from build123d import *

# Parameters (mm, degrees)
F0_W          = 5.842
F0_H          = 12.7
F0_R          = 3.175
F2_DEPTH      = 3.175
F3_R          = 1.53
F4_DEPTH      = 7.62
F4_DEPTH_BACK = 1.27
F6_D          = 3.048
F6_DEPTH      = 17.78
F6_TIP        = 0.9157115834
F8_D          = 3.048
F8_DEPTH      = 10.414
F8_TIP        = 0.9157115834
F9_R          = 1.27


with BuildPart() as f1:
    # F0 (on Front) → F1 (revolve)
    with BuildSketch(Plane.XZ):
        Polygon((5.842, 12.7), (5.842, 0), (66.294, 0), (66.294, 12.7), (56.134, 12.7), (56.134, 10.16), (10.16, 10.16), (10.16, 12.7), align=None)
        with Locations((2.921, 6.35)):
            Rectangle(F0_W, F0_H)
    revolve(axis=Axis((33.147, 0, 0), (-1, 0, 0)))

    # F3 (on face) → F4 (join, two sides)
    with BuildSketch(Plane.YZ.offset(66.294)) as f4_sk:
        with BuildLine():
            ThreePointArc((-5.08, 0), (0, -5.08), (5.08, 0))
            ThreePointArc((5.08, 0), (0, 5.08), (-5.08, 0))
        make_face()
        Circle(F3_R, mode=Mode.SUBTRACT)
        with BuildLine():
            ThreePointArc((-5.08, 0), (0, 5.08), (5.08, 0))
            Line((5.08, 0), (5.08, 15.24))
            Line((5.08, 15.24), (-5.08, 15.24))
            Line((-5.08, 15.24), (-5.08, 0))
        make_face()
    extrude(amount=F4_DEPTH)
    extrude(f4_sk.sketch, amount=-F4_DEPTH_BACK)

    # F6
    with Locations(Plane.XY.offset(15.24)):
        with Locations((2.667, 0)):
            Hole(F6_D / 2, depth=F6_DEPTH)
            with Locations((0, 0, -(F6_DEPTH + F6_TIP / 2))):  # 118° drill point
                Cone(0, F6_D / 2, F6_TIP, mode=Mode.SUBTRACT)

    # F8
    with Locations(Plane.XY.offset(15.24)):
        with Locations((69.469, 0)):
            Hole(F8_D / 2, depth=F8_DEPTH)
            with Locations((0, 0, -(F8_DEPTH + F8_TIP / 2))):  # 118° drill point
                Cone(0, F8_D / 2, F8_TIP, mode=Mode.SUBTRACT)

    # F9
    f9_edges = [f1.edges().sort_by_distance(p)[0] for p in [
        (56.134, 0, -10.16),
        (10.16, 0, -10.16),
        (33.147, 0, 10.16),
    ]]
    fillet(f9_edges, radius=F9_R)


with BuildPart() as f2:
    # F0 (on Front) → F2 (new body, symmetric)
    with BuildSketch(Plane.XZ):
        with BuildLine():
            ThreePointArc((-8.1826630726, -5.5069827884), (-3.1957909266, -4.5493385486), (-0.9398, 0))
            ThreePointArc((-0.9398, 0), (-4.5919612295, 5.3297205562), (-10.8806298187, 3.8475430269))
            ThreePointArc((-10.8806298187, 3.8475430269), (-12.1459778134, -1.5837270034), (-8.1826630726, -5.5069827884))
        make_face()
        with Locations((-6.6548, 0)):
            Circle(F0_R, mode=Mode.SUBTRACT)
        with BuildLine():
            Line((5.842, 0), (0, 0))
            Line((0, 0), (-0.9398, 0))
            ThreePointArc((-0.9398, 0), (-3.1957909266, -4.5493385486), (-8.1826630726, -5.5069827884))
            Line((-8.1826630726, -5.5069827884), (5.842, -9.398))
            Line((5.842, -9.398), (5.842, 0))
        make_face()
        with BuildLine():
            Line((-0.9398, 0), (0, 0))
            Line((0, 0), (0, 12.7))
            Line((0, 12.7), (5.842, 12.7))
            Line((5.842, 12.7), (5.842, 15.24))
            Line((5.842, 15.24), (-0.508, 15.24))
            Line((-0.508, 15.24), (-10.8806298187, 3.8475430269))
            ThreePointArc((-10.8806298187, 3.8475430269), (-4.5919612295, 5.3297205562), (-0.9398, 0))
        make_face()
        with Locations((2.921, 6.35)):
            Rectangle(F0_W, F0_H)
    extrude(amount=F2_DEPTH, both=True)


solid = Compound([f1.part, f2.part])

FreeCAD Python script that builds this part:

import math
import FreeCAD as App
import Part
import Sketcher
Q = App.Units.Quantity


def edges_at(feature, points):
    """Names of the edges that pass closest to the given points."""
    edges = feature.Shape.Edges
    near = lambda p: min(range(len(edges)), key=lambda i: edges[i].distToShape(Part.Vertex(*p))[0])
    return sorted({f"Edge{near(p) + 1}" for p in points})

doc = App.newDocument("Part")
body = doc.addObject("PartDesign::Body", "Body")

# Sketch on XZ plane
sketch1 = body.newObject("Sketcher::SketchObject", "Sketch")
sketch1.AttachmentSupport = (doc.getObject("XZ_Plane"), [""])
sketch1.MapMode = "FlatFace"
sketch1.addGeometry([
    Part.LineSegment(App.Vector(66.294, 0, 0), App.Vector(66.294, 12.7, 0)),  # 0
    Part.LineSegment(App.Vector(66.294, 12.7, 0), App.Vector(56.134, 12.7, 0)),  # 1
    Part.LineSegment(App.Vector(56.134, 12.7, 0), App.Vector(56.134, 10.16, 0)),  # 2
    Part.LineSegment(App.Vector(56.134, 10.16, 0), App.Vector(10.16, 10.16, 0)),  # 3
    Part.LineSegment(App.Vector(10.16, 10.16, 0), App.Vector(10.16, 12.7, 0)),  # 4
    Part.LineSegment(App.Vector(10.16, 12.7, 0), App.Vector(0, 12.7, 0)),  # 5
    Part.LineSegment(App.Vector(0, 12.7, 0), App.Vector(0, 0, 0)),  # 6
    Part.LineSegment(App.Vector(0, 0, 0), App.Vector(66.294, 0, 0)),  # 7
], False)
sketch1.addConstraint([
    Sketcher.Constraint("Coincident", 0, 2, 1, 1),
    Sketcher.Constraint("Coincident", 1, 2, 2, 1),
    Sketcher.Constraint("Coincident", 2, 2, 3, 1),
    Sketcher.Constraint("Coincident", 3, 2, 4, 1),
    Sketcher.Constraint("Coincident", 4, 2, 5, 1),
    Sketcher.Constraint("Coincident", 5, 2, 6, 1),
    Sketcher.Constraint("Coincident", 6, 2, 7, 1),
    Sketcher.Constraint("Coincident", 7, 2, 0, 1),
    Sketcher.Constraint("Vertical", 0),
    Sketcher.Constraint("Horizontal", 1),
    Sketcher.Constraint("Vertical", 2),
    Sketcher.Constraint("Horizontal", 3),
    Sketcher.Constraint("Vertical", 4),
    Sketcher.Constraint("Horizontal", 5),
    Sketcher.Constraint("Vertical", 6),
    Sketcher.Constraint("Horizontal", 7),
    Sketcher.Constraint("Coincident", 6, 2, -1, 1),
    Sketcher.Constraint("Horizontal", 1, 2, 4, 2),
    Sketcher.Constraint("Equal", 1, 5),
    Sketcher.Constraint("DistanceX", 1, 2, 1, 1, Q("0.4 in")),
    Sketcher.Constraint("DistanceY", 0, 1, 0, 2, Q("0.5 in")),
    Sketcher.Constraint("DistanceY", 2, 2, 2, 1, Q("0.1 in")),
    Sketcher.Constraint("DistanceX", 3, 2, 3, 1, Q("1.81 in")),
])
revolution = body.newObject("PartDesign::Revolution", "Revolution")
revolution.Profile = sketch1
revolution.ReferenceAxis = (sketch1, ["H_Axis"])
revolution.Angle = 360

# Sketch on YZ plane
sketch2 = body.newObject("Sketcher::SketchObject", "Sketch001")
sketch2.AttachmentSupport = (doc.getObject("YZ_Plane"), [""])
sketch2.MapMode = "FlatFace"
sketch2.AttachmentOffset = App.Placement(App.Vector(0, 0, 2.61 * 25.4), App.Rotation())
sketch2.addGeometry([
    Part.ArcOfCircle(Part.Circle(App.Vector(0, 0, 0), App.Vector(0, 0, 1), 5.08), math.radians(180), math.radians(360)),  # 0
    Part.LineSegment(App.Vector(5.08, 0, 0), App.Vector(5.08, 15.24, 0)),  # 1
    Part.LineSegment(App.Vector(5.08, 15.24, 0), App.Vector(-5.08, 15.24, 0)),  # 2
    Part.LineSegment(App.Vector(-5.08, 15.24, 0), App.Vector(-5.08, 0, 0)),  # 3
    Part.Circle(App.Vector(0, 0, 0), App.Vector(0, 0, 1), 1.53),  # 4
], False)
sketch2.addConstraint([
    Sketcher.Constraint("Tangent", 0, 2, 1, 1),
    Sketcher.Constraint("Coincident", 1, 2, 2, 1),
    Sketcher.Constraint("Coincident", 2, 2, 3, 1),
    Sketcher.Constraint("Tangent", 3, 2, 0, 1),
    Sketcher.Constraint("Vertical", 1),
    Sketcher.Constraint("Horizontal", 2),
    Sketcher.Constraint("Vertical", 3),
    Sketcher.Constraint("Coincident", 0, 3, -1, 1),
    Sketcher.Constraint("Coincident", 4, 3, -1, 1),
    Sketcher.Constraint("Radius", 0, Q("0.2 in")),
    Sketcher.Constraint("DistanceY", 1, 1, 1, 2, Q("0.6 in")),
    Sketcher.Constraint("Diameter", 4, Q("3.06 mm")),
])
pad1 = body.newObject("PartDesign::Pad", "Pad")
pad1.Profile = sketch2
pad1.Type = "TwoLengths"
pad1.Length = Q("0.3 in")
pad1.Length2 = Q("0.05 in")

# Sketch on XY plane
sketch3 = body.newObject("Sketcher::SketchObject", "Sketch002")
sketch3.AttachmentSupport = (doc.getObject("XY_Plane"), [""])
sketch3.MapMode = "FlatFace"
sketch3.AttachmentOffset = App.Placement(App.Vector(0, 0, 0.6 * 25.4), App.Rotation())
sketch3.addGeometry(Part.Circle(App.Vector(2.667, 0, 0), App.Vector(0, 0, 1), 1.524), False)
sketch3.addConstraint([
    Sketcher.Constraint("PointOnObject", 0, 3, -1),
    Sketcher.Constraint("Diameter", 0, Q("0.12 in")),
    Sketcher.Constraint("DistanceX", -1, 1, 0, 3, Q("0.105 in")),
])
doc.recompute()
hole = body.newObject("PartDesign::Hole", "Hole")
hole.Profile = sketch3
hole.ThreadType = "None"
hole.Diameter = Q("0.12 in")
hole.DepthType = "Dimension"
hole.Depth = Q("0.7 in")
hole.DrillPoint = "Angled"
hole.DrillPointAngle = 118

# Sketch on XY plane
sketch4 = body.newObject("Sketcher::SketchObject", "Sketch003")
sketch4.AttachmentSupport = (doc.getObject("XY_Plane"), [""])
sketch4.MapMode = "FlatFace"
sketch4.AttachmentOffset = App.Placement(App.Vector(0, 0, 0.6 * 25.4), App.Rotation())
sketch4.addGeometry(Part.Circle(App.Vector(69.469, 0, 0), App.Vector(0, 0, 1), 1.524), False)
sketch4.addConstraint([
    Sketcher.Constraint("PointOnObject", 0, 3, -1),
    Sketcher.Constraint("Diameter", 0, Q("0.12 in")),
    Sketcher.Constraint("DistanceX", -1, 1, 0, 3, Q("2.735 in")),
])
doc.recompute()
hole2 = body.newObject("PartDesign::Hole", "Hole001")
hole2.Profile = sketch4
hole2.ThreadType = "None"
hole2.Diameter = Q("0.12 in")
hole2.DepthType = "Dimension"
hole2.Depth = Q("0.41 in")
hole2.DrillPoint = "Angled"
hole2.DrillPointAngle = 118
doc.recompute()

fillet = body.newObject("PartDesign::Fillet", "Fillet")
fillet.Base = (hole2, edges_at(hole2, [(56.134, 0, -10.16), (10.16, 0, -10.16), (33.147, 0, 10.16)]))
fillet.Radius = Q("0.05 in")
body2 = doc.addObject("PartDesign::Body", "Body001")

# Sketch on XZ plane
sketch5 = body2.newObject("Sketcher::SketchObject", "Sketch004")
sketch5.AttachmentSupport = (doc.getObject("XZ_Plane001"), [""])
sketch5.MapMode = "FlatFace"
sketch5.addGeometry([
    Part.ArcOfCircle(Part.Circle(App.Vector(-6.6548, 0, 0), App.Vector(0, 0, 1), 5.715), math.radians(137.682695), math.radians(254.493802)),  # 0
    Part.LineSegment(App.Vector(-8.182663, -5.506983, 0), App.Vector(5.842, -9.398, 0)),  # 1
    Part.LineSegment(App.Vector(5.842, -9.398, 0), App.Vector(5.842, 15.24, 0)),  # 2
    Part.LineSegment(App.Vector(5.842, 15.24, 0), App.Vector(-0.508, 15.24, 0)),  # 3
    Part.LineSegment(App.Vector(-0.508, 15.24, 0), App.Vector(-10.88063, 3.847543, 0)),  # 4
    Part.Circle(App.Vector(-6.6548, 0, 0), App.Vector(0, 0, 1), 3.175),  # 5
], False)
sketch5.addConstraint([
    Sketcher.Constraint("Tangent", 0, 2, 1, 1),
    Sketcher.Constraint("Coincident", 1, 2, 2, 1),
    Sketcher.Constraint("Coincident", 2, 2, 3, 1),
    Sketcher.Constraint("Coincident", 3, 2, 4, 1),
    Sketcher.Constraint("Tangent", 4, 2, 0, 1),
    Sketcher.Constraint("Vertical", 2),
    Sketcher.Constraint("Horizontal", 3),
    Sketcher.Constraint("Coincident", 5, 3, 0, 3),
    Sketcher.Constraint("PointOnObject", 0, 3, -1),
    Sketcher.Constraint("Diameter", 5, Q("0.25 in")),
    Sketcher.Constraint("Radius", 0, Q("0.225 in")),
    Sketcher.Constraint("DistanceX", 3, 2, 3, 1, Q("0.25 in")),
    Sketcher.Constraint("DistanceY", 2, 1, 2, 2, Q("0.97 in")),
    Sketcher.Constraint("DistanceY", -1, 1, 2, 2, Q("0.6 in")),
    Sketcher.Constraint("DistanceX", -1, 1, 1, 2, Q("0.23 in")),
    Sketcher.Constraint("DistanceX", 0, 3, -1, 1, Q("0.262 in")),
])
pad2 = body2.newObject("PartDesign::Pad", "Pad001")
pad2.Profile = sketch5
pad2.Length = Q("0.25 in")
pad2.Midplane = True

doc.recompute()
